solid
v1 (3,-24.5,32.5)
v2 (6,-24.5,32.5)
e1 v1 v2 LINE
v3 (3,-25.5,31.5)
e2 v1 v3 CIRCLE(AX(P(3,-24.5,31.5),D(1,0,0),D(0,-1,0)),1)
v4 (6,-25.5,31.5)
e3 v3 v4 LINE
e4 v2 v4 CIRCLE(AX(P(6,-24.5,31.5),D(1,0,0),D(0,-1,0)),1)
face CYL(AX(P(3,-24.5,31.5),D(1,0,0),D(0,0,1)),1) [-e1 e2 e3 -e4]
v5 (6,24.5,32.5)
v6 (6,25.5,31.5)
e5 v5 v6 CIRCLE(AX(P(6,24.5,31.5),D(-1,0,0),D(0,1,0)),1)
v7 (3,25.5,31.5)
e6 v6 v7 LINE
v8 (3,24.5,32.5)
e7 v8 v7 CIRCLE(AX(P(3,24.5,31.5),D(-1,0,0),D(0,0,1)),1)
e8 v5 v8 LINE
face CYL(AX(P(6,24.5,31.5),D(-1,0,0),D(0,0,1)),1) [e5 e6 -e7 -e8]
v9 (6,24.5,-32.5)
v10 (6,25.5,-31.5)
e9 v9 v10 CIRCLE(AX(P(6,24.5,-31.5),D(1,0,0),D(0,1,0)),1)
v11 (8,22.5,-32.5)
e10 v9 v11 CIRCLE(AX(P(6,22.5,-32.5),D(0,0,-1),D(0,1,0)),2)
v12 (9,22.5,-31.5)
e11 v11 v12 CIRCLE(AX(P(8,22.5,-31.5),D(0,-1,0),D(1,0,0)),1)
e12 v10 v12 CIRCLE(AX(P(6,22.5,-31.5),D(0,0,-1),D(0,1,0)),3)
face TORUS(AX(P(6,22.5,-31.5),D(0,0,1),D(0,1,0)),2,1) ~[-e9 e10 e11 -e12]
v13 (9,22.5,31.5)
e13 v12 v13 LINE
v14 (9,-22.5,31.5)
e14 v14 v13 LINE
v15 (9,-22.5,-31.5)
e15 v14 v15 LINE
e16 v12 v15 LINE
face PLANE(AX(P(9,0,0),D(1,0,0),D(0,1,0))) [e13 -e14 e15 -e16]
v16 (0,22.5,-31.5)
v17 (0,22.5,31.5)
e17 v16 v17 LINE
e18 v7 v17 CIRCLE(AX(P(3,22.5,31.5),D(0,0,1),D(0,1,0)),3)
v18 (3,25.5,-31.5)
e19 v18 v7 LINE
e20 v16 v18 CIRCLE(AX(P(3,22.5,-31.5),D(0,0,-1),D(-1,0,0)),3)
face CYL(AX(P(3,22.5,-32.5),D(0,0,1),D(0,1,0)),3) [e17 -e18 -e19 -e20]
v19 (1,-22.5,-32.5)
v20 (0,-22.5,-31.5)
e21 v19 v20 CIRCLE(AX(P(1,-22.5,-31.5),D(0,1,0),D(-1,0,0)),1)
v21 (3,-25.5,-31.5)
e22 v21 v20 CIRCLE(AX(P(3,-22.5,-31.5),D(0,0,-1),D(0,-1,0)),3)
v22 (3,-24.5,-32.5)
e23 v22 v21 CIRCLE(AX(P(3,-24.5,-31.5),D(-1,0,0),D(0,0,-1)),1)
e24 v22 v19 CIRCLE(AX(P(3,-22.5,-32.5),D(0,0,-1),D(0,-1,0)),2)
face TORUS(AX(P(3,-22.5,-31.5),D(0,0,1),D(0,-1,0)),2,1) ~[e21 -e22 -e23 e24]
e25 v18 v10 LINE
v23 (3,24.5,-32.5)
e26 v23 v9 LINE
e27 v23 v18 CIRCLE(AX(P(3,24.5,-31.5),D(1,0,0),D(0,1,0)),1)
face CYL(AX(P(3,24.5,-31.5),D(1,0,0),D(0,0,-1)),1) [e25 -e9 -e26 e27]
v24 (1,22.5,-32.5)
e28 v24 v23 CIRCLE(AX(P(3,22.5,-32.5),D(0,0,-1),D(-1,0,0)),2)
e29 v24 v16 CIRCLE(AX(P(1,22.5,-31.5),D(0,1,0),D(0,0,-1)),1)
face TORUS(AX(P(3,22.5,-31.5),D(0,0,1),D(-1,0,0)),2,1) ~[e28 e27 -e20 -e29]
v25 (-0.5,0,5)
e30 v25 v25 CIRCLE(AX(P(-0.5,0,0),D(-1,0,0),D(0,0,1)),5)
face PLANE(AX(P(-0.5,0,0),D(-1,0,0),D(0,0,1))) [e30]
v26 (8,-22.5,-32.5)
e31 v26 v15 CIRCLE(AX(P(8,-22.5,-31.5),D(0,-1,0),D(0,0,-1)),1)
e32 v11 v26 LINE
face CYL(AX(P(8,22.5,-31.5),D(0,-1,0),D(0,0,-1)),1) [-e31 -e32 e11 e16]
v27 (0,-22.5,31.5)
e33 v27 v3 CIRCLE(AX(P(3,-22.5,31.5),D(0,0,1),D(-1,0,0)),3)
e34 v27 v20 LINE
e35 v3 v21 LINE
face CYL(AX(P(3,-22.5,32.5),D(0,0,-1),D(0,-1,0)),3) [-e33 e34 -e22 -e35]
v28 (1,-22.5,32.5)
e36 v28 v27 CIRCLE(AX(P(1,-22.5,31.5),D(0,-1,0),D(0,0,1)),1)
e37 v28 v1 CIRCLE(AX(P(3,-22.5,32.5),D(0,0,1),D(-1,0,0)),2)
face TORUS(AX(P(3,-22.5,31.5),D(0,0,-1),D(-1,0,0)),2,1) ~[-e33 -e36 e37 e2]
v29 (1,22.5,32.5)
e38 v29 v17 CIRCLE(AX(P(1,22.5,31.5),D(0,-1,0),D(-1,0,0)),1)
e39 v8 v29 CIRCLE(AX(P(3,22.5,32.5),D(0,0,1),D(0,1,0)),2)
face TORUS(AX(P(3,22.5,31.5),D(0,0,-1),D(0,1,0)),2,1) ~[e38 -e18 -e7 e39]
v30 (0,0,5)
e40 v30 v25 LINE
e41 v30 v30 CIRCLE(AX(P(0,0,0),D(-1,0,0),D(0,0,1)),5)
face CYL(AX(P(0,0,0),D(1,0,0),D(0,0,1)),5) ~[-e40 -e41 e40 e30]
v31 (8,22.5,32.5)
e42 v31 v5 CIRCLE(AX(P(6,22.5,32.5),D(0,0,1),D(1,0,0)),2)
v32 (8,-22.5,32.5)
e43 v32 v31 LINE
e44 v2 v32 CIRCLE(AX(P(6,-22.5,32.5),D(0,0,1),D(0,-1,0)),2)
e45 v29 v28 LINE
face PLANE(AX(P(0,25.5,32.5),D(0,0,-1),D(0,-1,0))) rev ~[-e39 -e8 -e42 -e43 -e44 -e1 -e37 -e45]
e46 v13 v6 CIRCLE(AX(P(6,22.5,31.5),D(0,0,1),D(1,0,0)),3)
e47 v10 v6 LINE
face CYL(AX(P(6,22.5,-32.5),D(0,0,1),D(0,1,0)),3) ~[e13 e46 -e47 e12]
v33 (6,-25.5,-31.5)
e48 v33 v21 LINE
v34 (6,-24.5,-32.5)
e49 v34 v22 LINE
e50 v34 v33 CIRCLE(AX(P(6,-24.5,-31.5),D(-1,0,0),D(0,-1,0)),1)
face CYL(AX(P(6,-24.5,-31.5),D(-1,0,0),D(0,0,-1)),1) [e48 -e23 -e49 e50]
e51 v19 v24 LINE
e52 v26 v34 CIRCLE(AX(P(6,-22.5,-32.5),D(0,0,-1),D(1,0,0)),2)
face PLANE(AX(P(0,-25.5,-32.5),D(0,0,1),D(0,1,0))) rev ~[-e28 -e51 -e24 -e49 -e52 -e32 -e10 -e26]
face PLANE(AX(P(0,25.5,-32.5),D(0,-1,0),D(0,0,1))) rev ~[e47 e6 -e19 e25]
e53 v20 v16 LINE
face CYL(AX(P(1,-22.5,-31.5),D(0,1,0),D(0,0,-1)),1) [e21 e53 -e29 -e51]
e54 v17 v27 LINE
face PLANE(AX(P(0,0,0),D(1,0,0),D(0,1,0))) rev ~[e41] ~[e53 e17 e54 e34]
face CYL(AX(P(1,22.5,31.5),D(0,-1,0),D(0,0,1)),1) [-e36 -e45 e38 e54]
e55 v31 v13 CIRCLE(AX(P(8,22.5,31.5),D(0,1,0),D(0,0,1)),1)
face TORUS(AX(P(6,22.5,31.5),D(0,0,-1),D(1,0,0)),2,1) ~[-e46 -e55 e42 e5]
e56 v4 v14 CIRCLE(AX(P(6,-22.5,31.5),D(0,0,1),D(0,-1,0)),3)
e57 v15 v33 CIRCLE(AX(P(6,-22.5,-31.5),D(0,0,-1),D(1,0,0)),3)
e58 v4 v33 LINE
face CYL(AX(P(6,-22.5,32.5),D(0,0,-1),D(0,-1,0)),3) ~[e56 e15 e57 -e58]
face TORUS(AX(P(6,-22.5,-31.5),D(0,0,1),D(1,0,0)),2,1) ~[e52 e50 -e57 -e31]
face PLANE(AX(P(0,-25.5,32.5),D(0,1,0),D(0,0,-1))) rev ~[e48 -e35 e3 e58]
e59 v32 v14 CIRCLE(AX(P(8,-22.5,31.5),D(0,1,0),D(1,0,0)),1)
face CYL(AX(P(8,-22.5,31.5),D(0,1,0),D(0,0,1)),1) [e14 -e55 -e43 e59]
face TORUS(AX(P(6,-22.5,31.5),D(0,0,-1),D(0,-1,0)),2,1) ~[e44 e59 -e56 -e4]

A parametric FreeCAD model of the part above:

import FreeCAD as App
import Part
import Sketcher


def edges_at(feature, points):
    """Names of the edges that pass closest to the given points."""
    edges = feature.Shape.Edges
    near = lambda p: min(range(len(edges)), key=lambda i: edges[i].distToShape(Part.Vertex(*p))[0])
    return sorted({f"Edge{near(p) + 1}" for p in points})

doc = App.newDocument("Part")
body = doc.addObject("PartDesign::Body", "Body")

sketch1 = doc.addObject("Sketcher::SketchObject", "Sketch")
body.addObject(sketch1)
sketch1.AttachmentSupport = (doc.YZ_Plane, [""])
sketch1.MapMode = "FlatFace"
sketch1.addGeometry([
    Part.LineSegment(App.Vector(-26, 32, 0), App.Vector(-26, -32, 0)),
    Part.LineSegment(App.Vector(-26, -32, 0), App.Vector(26, -32, 0)),
    Part.LineSegment(App.Vector(26, -32, 0), App.Vector(26, 32, 0)),
    Part.LineSegment(App.Vector(26, 32, 0), App.Vector(-26, 32, 0)),
], False)
sketch1.addConstraint([
    Sketcher.Constraint("Coincident", 0, 2, 1, 1),
    Sketcher.Constraint("Coincident", 1, 2, 2, 1),
    Sketcher.Constraint("Coincident", 2, 2, 3, 1),
    Sketcher.Constraint("Coincident", 3, 2, 0, 1),
    Sketcher.Constraint("Vertical", 0),
    Sketcher.Constraint("Horizontal", 1),
    Sketcher.Constraint("Vertical", 2),
    Sketcher.Constraint("Horizontal", 3),
    Sketcher.Constraint("Symmetric", 0, 2, 2, 2, -1, 1),
    Sketcher.Constraint("DistanceX", 1, 1, 1, 2, 51.0),
    Sketcher.Constraint("DistanceY", 0, 2, 0, 1, 65.0),
])
pad1 = doc.addObject("PartDesign::Pad", "Pad")
body.addObject(pad1)
pad1.Profile = sketch1
pad1.Length = 9
doc.recompute()

fillet = doc.addObject("PartDesign::Fillet", "Fillet")
body.addObject(fillet)
fillet.Base = (pad1, edges_at(pad1, [
    (9, 25.5, 0),
    (0, 25.5, 0),
    (9, -25.5, 0),
    (0, -25.5, 0),
]))
fillet.Radius = 3
doc.recompute()

fillet2 = doc.addObject("PartDesign::Fillet", "Fillet001")
body.addObject(fillet2)
fillet2.Base = (fillet, edges_at(fillet, [
    (8.121, -24.621, 32.5),
    (4.5, -25.5, 32.5),
    (0.879, -24.621, 32.5),
    (0, 0, 32.5),
    (0.879, 24.621, 32.5),
    (4.5, 25.5, 32.5),
    (8.121, 24.621, 32.5),
    (9, 0, 32.5),
    (8.121, 24.621, -32.5),
    (4.5, 25.5, -32.5),
    (0.879, 24.621, -32.5),
    (0, 0, -32.5),
    (0.879, -24.621, -32.5),
    (4.5, -25.5, -32.5),
    (8.121, -24.621, -32.5),
    (9, 0, -32.5),
]))
fillet2.Radius = 1

sketch2 = doc.addObject("Sketcher::SketchObject", "Sketch001")
body.addObject(sketch2)
sketch2.AttachmentSupport = (doc.YZ_Plane, [""])
sketch2.MapMode = "FlatFace"
sketch2.addGeometry(Part.Circle(App.Vector(0, 0, 0), App.Vector(0, 0, 1), 5), False)
sketch2.addConstraint([
    Sketcher.Constraint("Coincident", 0, 3, -1, 1),
    Sketcher.Constraint("Diameter", 0, 10.0),
])
pad2 = doc.addObject("PartDesign::Pad", "Pad001")
body.addObject(pad2)
pad2.Profile = sketch2
pad2.Length = 0.5
pad2.Reversed = True

doc.recompute()
